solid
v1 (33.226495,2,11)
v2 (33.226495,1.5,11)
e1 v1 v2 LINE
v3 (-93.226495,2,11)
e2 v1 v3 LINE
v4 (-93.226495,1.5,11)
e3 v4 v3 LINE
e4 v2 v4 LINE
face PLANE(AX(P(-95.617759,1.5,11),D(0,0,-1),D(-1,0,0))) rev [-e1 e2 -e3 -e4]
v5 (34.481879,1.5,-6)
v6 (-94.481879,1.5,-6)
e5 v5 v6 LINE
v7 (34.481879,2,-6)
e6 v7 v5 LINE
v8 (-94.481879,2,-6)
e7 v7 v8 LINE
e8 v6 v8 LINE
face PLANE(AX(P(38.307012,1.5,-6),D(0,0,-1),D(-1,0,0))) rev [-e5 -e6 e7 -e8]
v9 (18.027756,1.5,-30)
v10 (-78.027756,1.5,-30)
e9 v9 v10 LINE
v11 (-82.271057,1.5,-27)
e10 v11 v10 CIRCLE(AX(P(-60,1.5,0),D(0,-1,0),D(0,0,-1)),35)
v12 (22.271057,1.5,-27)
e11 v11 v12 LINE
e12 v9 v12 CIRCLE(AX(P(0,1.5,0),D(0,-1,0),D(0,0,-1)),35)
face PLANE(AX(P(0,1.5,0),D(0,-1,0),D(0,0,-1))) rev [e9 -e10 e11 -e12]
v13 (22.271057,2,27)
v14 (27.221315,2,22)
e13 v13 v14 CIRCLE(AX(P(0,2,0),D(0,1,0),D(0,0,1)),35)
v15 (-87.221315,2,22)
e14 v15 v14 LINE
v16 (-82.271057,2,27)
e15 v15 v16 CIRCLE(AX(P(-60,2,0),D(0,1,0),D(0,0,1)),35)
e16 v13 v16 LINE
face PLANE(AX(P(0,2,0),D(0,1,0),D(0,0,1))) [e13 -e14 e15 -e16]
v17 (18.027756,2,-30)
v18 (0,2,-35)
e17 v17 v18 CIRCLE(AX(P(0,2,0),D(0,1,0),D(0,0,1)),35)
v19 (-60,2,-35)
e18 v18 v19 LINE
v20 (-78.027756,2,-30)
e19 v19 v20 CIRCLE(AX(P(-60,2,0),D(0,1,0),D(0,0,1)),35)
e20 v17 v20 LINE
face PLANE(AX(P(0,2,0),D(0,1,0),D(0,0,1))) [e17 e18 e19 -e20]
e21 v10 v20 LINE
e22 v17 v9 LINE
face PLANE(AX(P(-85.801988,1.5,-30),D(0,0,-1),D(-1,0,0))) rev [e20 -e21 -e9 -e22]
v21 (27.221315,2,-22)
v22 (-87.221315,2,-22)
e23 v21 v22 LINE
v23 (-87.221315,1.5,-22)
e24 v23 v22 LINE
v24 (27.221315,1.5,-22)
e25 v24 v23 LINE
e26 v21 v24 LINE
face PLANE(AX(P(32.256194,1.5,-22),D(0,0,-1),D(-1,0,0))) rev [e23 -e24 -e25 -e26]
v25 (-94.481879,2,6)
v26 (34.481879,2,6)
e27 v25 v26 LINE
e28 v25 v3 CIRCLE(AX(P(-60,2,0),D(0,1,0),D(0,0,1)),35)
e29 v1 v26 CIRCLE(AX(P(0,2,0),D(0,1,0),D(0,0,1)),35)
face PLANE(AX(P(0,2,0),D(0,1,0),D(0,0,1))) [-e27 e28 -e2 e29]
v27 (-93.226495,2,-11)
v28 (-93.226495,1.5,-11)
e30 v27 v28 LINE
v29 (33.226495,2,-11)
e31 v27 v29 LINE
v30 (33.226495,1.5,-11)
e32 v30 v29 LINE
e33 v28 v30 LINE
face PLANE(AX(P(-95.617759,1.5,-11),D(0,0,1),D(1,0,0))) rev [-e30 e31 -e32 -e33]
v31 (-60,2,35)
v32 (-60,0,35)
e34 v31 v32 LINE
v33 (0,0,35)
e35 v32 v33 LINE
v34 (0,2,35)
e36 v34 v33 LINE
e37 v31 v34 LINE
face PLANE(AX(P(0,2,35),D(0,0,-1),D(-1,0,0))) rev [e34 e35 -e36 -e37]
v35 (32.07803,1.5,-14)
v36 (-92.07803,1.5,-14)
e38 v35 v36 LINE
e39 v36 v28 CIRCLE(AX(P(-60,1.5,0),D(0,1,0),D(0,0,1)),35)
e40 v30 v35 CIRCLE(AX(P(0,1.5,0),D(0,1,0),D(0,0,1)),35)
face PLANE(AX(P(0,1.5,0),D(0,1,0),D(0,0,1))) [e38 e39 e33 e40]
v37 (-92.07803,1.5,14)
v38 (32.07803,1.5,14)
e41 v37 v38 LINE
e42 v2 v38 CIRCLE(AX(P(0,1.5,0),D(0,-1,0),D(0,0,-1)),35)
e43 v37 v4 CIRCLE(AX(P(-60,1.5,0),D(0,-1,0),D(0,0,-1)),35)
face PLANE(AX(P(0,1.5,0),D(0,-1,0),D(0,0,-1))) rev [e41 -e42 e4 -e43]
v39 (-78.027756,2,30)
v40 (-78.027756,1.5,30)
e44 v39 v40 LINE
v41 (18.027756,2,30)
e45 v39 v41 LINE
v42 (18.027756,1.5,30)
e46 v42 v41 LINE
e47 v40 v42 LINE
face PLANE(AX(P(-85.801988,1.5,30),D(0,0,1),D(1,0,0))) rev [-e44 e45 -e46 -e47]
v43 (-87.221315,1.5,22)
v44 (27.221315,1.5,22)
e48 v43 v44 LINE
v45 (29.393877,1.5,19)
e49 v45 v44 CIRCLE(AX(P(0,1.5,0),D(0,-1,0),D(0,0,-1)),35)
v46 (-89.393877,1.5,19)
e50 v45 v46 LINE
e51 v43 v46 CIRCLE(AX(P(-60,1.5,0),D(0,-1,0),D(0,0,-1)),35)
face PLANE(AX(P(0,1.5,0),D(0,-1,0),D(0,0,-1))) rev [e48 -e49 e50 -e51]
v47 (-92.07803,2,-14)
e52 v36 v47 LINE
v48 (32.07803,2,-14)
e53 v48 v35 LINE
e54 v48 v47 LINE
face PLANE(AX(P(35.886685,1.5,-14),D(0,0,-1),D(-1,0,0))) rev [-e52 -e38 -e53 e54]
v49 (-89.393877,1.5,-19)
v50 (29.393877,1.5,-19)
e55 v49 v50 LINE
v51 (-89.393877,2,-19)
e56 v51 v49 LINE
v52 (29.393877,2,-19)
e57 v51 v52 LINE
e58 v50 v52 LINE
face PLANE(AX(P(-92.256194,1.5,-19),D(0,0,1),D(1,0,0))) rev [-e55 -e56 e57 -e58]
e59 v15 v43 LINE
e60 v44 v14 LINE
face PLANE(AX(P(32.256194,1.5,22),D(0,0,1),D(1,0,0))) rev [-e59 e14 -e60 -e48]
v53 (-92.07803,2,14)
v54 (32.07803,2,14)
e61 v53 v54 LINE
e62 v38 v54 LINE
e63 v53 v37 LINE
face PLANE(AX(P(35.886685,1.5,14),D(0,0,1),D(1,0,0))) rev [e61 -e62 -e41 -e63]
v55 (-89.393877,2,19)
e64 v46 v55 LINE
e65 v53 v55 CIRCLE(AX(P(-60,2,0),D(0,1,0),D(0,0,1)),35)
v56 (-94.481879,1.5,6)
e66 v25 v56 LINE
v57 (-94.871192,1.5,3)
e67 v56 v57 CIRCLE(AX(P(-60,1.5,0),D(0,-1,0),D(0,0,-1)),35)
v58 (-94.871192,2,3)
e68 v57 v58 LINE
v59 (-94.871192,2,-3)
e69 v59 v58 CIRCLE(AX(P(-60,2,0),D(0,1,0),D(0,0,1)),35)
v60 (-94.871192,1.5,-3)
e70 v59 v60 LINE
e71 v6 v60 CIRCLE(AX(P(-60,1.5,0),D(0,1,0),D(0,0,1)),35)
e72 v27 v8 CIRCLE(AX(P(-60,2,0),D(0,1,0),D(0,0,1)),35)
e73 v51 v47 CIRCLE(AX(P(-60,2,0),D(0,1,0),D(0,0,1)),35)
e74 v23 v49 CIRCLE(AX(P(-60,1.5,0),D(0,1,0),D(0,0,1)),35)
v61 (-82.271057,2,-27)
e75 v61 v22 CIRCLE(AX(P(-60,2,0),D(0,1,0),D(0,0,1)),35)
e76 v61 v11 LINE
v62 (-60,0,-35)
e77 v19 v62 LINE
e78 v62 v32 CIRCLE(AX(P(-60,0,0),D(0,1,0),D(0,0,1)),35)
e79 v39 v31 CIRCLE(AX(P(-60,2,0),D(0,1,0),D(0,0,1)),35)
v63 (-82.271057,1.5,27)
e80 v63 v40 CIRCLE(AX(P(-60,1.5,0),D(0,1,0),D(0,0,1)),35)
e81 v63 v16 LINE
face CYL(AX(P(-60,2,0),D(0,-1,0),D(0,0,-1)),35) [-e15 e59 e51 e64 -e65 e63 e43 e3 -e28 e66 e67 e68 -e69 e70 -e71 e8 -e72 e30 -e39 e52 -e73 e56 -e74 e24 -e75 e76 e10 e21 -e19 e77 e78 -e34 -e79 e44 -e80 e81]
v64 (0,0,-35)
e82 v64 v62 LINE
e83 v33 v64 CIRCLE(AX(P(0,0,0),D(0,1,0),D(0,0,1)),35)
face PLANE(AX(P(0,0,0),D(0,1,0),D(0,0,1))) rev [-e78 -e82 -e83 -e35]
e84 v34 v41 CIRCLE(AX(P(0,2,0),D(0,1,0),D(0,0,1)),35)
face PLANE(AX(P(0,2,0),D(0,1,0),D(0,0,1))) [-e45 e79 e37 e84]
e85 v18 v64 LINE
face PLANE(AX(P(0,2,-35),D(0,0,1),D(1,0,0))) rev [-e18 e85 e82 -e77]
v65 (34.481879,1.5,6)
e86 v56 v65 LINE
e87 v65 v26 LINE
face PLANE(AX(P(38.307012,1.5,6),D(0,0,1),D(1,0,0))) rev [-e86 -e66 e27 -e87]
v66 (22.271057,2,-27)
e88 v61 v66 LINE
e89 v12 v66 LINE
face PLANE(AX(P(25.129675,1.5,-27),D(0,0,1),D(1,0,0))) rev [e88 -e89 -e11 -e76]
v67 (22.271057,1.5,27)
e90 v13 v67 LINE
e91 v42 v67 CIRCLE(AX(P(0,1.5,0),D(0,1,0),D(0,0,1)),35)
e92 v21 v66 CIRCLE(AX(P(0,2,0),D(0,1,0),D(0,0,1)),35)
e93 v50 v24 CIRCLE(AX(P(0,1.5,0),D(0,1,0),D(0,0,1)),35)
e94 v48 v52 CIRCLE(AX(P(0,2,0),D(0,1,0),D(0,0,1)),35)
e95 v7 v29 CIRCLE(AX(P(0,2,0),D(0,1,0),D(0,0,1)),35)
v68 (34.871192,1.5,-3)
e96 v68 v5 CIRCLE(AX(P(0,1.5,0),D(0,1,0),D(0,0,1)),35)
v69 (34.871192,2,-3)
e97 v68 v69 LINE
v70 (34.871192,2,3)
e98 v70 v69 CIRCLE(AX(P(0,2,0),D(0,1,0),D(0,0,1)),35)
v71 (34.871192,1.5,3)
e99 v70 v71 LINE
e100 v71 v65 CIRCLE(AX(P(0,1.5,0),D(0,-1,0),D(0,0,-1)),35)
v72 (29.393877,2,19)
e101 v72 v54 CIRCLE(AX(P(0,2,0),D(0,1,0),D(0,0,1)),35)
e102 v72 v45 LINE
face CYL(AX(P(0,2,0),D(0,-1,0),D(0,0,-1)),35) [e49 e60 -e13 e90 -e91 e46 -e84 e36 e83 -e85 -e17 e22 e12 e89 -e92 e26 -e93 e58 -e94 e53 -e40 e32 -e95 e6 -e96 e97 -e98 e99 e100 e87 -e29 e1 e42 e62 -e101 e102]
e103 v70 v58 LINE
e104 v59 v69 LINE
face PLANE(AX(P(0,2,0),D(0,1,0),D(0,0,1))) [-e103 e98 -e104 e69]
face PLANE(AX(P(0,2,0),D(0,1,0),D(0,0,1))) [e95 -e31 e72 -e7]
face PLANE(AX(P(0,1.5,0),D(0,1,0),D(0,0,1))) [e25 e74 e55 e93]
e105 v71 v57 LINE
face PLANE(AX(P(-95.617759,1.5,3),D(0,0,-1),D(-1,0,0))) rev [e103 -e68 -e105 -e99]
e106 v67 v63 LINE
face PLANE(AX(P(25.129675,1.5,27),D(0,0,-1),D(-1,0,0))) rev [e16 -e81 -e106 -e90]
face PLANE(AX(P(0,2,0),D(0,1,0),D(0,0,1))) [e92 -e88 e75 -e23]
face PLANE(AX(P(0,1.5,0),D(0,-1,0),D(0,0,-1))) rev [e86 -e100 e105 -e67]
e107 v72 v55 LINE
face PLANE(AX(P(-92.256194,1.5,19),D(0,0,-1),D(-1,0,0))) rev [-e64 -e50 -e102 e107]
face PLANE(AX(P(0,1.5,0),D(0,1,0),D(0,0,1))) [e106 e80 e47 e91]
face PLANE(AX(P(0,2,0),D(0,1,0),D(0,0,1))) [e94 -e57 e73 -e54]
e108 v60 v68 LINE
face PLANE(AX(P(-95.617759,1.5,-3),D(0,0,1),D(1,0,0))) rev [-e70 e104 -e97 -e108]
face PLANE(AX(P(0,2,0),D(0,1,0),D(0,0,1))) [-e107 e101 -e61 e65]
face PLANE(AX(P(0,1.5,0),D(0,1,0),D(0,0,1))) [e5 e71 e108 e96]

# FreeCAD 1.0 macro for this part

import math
import FreeCAD as App
import Part
import Sketcher
from FreeCAD import Vector
Q = App.Units.Quantity

doc = App.newDocument("Part")
body = doc.addObject("PartDesign::Body", "Body")

sketch1 = doc.addObject("Sketcher::SketchObject", "Sketch")
body.addObject(sketch1)
sketch1.AttachmentSupport = (doc.XZ_Plane, [""])
sketch1.MapMode = "FlatFace"
sketch1.addGeometry(Part.LineSegment(Vector(0, -35, 0), Vector(-60, -35, 0)), False)
sketch1.addGeometry(Part.ArcOfCircle(Part.Circle(Vector(-60, 0, 0), Vector(0, 0, 1), 35), math.radians(90), math.radians(270)), False)
sketch1.addGeometry(Part.LineSegment(Vector(-60, 35, 0), Vector(0, 35, 0)), False)
sketch1.addGeometry(Part.ArcOfCircle(Part.Circle(Vector(0, 0, 0), Vector(0, 0, 1), 35), math.radians(-90), math.radians(90)), False)
sketch1.addConstraint(Sketcher.Constraint("Tangent", 0, 2, 1, 2))
sketch1.addConstraint(Sketcher.Constraint("Tangent", 1, 1, 2, 1))
sketch1.addConstraint(Sketcher.Constraint("Tangent", 2, 2, 3, 2))
sketch1.addConstraint(Sketcher.Constraint("Tangent", 3, 1, 0, 1))
sketch1.addConstraint(Sketcher.Constraint("Horizontal", 0))
sketch1.addConstraint(Sketcher.Constraint("Horizontal", 2))
sketch1.addConstraint(Sketcher.Constraint("Coincident", 3, 3, -1, 1))
sketch1.addConstraint(Sketcher.Constraint("Radius", 1, Q("35 mm")))
sketch1.addConstraint(Sketcher.Constraint("DistanceX", 0, 2, 0, 1, Q("60 mm")))
pad1 = doc.addObject("PartDesign::Pad", "Pad")
body.addObject(pad1)
pad1.Profile = sketch1
pad1.Length = 2
pad1.Reversed = True

sketch2 = doc.addObject("Sketcher::SketchObject", "Sketch001")
body.addObject(sketch2)
sketch2.AttachmentSupport = (doc.XZ_Plane, [""])
sketch2.MapMode = "FlatFace"
sketch2.AttachmentOffset = App.Placement(Vector(0, 0, -2), App.Rotation())
sketch2.addGeometry(Part.LineSegment(Vector(-85.8, -30, 0), Vector(-85.8, -27, 0)), False)
sketch2.addGeometry(Part.LineSegment(Vector(-85.8, -27, 0), Vector(25.1, -27, 0)), False)
sketch2.addGeometry(Part.LineSegment(Vector(25.1, -27, 0), Vector(25.1, -30, 0)), False)
sketch2.addGeometry(Part.LineSegment(Vector(25.1, -30, 0), Vector(-85.8, -30, 0)), False)
sketch2.addGeometry(Part.LineSegment(Vector(-92.3, -22, 0), Vector(-92.3, -19, 0)), False)
sketch2.addGeometry(Part.LineSegment(Vector(-92.3, -19, 0), Vector(32.3, -19, 0)), False)
sketch2.addGeometry(Part.LineSegment(Vector(32.3, -19, 0), Vector(32.3, -22, 0)), False)
sketch2.addGeometry(Part.LineSegment(Vector(32.3, -22, 0), Vector(-92.3, -22, 0)), False)
sketch2.addGeometry(Part.LineSegment(Vector(-95.6, -14, 0), Vector(-95.6, -11, 0)), False)
sketch2.addGeometry(Part.LineSegment(Vector(-95.6, -11, 0), Vector(35.9, -11, 0)), False)
sketch2.addGeometry(Part.LineSegment(Vector(35.9, -11, 0), Vector(35.9, -14, 0)), False)
sketch2.addGeometry(Part.LineSegment(Vector(35.9, -14, 0), Vector(-95.6, -14, 0)), False)
sketch2.addGeometry(Part.LineSegment(Vector(-95.6, -6, 0), Vector(-95.6, -3, 0)), False)
sketch2.addGeometry(Part.LineSegment(Vector(-95.6, -3, 0), Vector(38.3, -3, 0)), False)
sketch2.addGeometry(Part.LineSegment(Vector(38.3, -3, 0), Vector(38.3, -6, 0)), False)
sketch2.addGeometry(Part.LineSegment(Vector(38.3, -6, 0), Vector(-95.6, -6, 0)), False)
sketch2.addGeometry(Part.LineSegment(Vector(-95.6, 3, 0), Vector(-95.6, 6, 0)), False)
sketch2.addGeometry(Part.LineSegment(Vector(-95.6, 6, 0), Vector(38.3, 6, 0)), False)
sketch2.addGeometry(Part.LineSegment(Vector(38.3, 6, 0), Vector(38.3, 3, 0)), False)
sketch2.addGeometry(Part.LineSegment(Vector(38.3, 3, 0), Vector(-95.6, 3, 0)), False)
sketch2.addGeometry(Part.LineSegment(Vector(-95.6, 11, 0), Vector(-95.6, 14, 0)), False)
sketch2.addGeometry(Part.LineSegment(Vector(-95.6, 14, 0), Vector(35.9, 14, 0)), False)
sketch2.addGeometry(Part.LineSegment(Vector(35.9, 14, 0), Vector(35.9, 11, 0)), False)
sketch2.addGeometry(Part.LineSegment(Vector(35.9, 11, 0), Vector(-95.6, 11, 0)), False)
sketch2.addGeometry(Part.LineSegment(Vector(-92.3, 19, 0), Vector(-92.3, 22, 0)), False)
sketch2.addGeometry(Part.LineSegment(Vector(-92.3, 22, 0), Vector(32.3, 22, 0)), False)
sketch2.addGeometry(Part.LineSegment(Vector(32.3, 22, 0), Vector(32.3, 19, 0)), False)
sketch2.addGeometry(Part.LineSegment(Vector(32.3, 19, 0), Vector(-92.3, 19, 0)), False)
sketch2.addGeometry(Part.LineSegment(Vector(-85.8, 27, 0), Vector(-85.8, 30, 0)), False)
sketch2.addGeometry(Part.LineSegment(Vector(-85.8, 30, 0), Vector(25.1, 30, 0)), False)
sketch2.addGeometry(Part.LineSegment(Vector(25.1, 30, 0), Vector(25.1, 27, 0)), False)
sketch2.addGeometry(Part.LineSegment(Vector(25.1, 27, 0), Vector(-85.8, 27, 0)), False)
sketch2.addConstraint(Sketcher.Constraint("Coincident", 0, 2, 1, 1))
sketch2.addConstraint(Sketcher.Constraint("Coincident", 1, 2, 2, 1))
sketch2.addConstraint(Sketcher.Constraint("Coincident", 2, 2, 3, 1))
sketch2.addConstraint(Sketcher.Constraint("Coincident", 3, 2, 0, 1))
sketch2.addConstraint(Sketcher.Constraint("Coincident", 4, 2, 5, 1))
sketch2.addConstraint(Sketcher.Constraint("Coincident", 5, 2, 6, 1))
sketch2.addConstraint(Sketcher.Constraint("Coincident", 6, 2, 7, 1))
sketch2.addConstraint(Sketcher.Constraint("Coincident", 7, 2, 4, 1))
sketch2.addConstraint(Sketcher.Constraint("Coincident", 8, 2, 9, 1))
sketch2.addConstraint(Sketcher.Constraint("Coincident", 9, 2, 10, 1))
sketch2.addConstraint(Sketcher.Constraint("Coincident", 10, 2, 11, 1))
sketch2.addConstraint(Sketcher.Constraint("Coincident", 11, 2, 8, 1))
sketch2.addConstraint(Sketcher.Constraint("Coincident", 12, 2, 13, 1))
sketch2.addConstraint(Sketcher.Constraint("Coincident", 13, 2, 14, 1))
sketch2.addConstraint(Sketcher.Constraint("Coincident", 14, 2, 15, 1))
sketch2.addConstraint(Sketcher.Constraint("Coincident", 15, 2, 12, 1))
sketch2.addConstraint(Sketcher.Constraint("Coincident", 16, 2, 17, 1))
sketch2.addConstraint(Sketcher.Constraint("Coincident", 17, 2, 18, 1))
sketch2.addConstraint(Sketcher.Constraint("Coincident", 18, 2, 19, 1))
sketch2.addConstraint(Sketcher.Constraint("Coincident", 19, 2, 16, 1))
sketch2.addConstraint(Sketcher.Constraint("Coincident", 20, 2, 21, 1))
sketch2.addConstraint(Sketcher.Constraint("Coincident", 21, 2, 22, 1))
sketch2.addConstraint(Sketcher.Constraint("Coincident", 22, 2, 23, 1))
sketch2.addConstraint(Sketcher.Constraint("Coincident", 23, 2, 20, 1))
sketch2.addConstraint(Sketcher.Constraint("Coincident", 24, 2, 25, 1))
sketch2.addConstraint(Sketcher.Constraint("Coincident", 25, 2, 26, 1))
sketch2.addConstraint(Sketcher.Constraint("Coincident", 26, 2, 27, 1))
sketch2.addConstraint(Sketcher.Constraint("Coincident", 27, 2, 24, 1))
sketch2.addConstraint(Sketcher.Constraint("Coincident", 28, 2, 29, 1))
sketch2.addConstraint(Sketcher.Constraint("Coincident", 29, 2, 30, 1))
sketch2.addConstraint(Sketcher.Constraint("Coincident", 30, 2, 31, 1))
sketch2.addConstraint(Sketcher.Constraint("Coincident", 31, 2, 28, 1))
sketch2.addConstraint(Sketcher.Constraint("Vertical", 0))
sketch2.addConstraint(Sketcher.Constraint("Horizontal", 1))
sketch2.addConstraint(Sketcher.Constraint("Vertical", 2))
sketch2.addConstraint(Sketcher.Constraint("Horizontal", 3))
sketch2.addConstraint(Sketcher.Constraint("Vertical", 4))
sketch2.addConstraint(Sketcher.Constraint("Horizontal", 5))
sketch2.addConstraint(Sketcher.Constraint("Vertical", 6))
sketch2.addConstraint(Sketcher.Constraint("Horizontal", 7))
sketch2.addConstraint(Sketcher.Constraint("Vertical", 8))
sketch2.addConstraint(Sketcher.Constraint("Horizontal", 9))
sketch2.addConstraint(Sketcher.Constraint("Vertical", 10))
sketch2.addConstraint(Sketcher.Constraint("Horizontal", 11))
sketch2.addConstraint(Sketcher.Constraint("Vertical", 12))
sketch2.addConstraint(Sketcher.Constraint("Horizontal", 13))
sketch2.addConstraint(Sketcher.Constraint("Vertical", 14))
sketch2.addConstraint(Sketcher.Constraint("Horizontal", 15))
sketch2.addConstraint(Sketcher.Constraint("Vertical", 16))
sketch2.addConstraint(Sketcher.Constraint("Horizontal", 17))
sketch2.addConstraint(Sketcher.Constraint("Vertical", 18))
sketch2.addConstraint(Sketcher.Constraint("Horizontal", 19))
sketch2.addConstraint(Sketcher.Constraint("Vertical", 20))
sketch2.addConstraint(Sketcher.Constraint("Horizontal", 21))
sketch2.addConstraint(Sketcher.Constraint("Vertical", 22))
sketch2.addConstraint(Sketcher.Constraint("Horizontal", 23))
sketch2.addConstraint(Sketcher.Constraint("Vertical", 24))
sketch2.addConstraint(Sketcher.Constraint("Horizontal", 25))
sketch2.addConstraint(Sketcher.Constraint("Vertical", 26))
sketch2.addConstraint(Sketcher.Constraint("Horizontal", 27))
sketch2.addConstraint(Sketcher.Constraint("Vertical", 28))
sketch2.addConstraint(Sketcher.Constraint("Horizontal", 29))
sketch2.addConstraint(Sketcher.Constraint("Vertical", 30))
sketch2.addConstraint(Sketcher.Constraint("Horizontal", 31))
sketch2.addConstraint(Sketcher.Constraint("Symmetric", 15, 2, 16, 2, -1))
sketch2.addConstraint(Sketcher.Constraint("Symmetric", 13, 2, 18, 2, -1))
sketch2.addConstraint(Sketcher.Constraint("Symmetric", 11, 2, 20, 2, -1))
sketch2.addConstraint(Sketcher.Constraint("Symmetric", 9, 2, 22, 2, -1))
sketch2.addConstraint(Sketcher.Constraint("Symmetric", 7, 2, 24, 2, -1))
sketch2.addConstraint(Sketcher.Constraint("Symmetric", 5, 2, 26, 2, -1))
sketch2.addConstraint(Sketcher.Constraint("Symmetric", 3, 2, 28, 2, -1))
sketch2.addConstraint(Sketcher.Constraint("Symmetric", 1, 2, 30, 2, -1))
sketch2.addConstraint(Sketcher.Constraint("Vertical", 11, 2, 12, 2))
sketch2.addConstraint(Sketcher.Constraint("Equal", 2, 4))
sketch2.addConstraint(Sketcher.Constraint("Equal", 6, 8))
sketch2.addConstraint(Sketcher.Constraint("Equal", 10, 12))
sketch2.addConstraint(Sketcher.Constraint("DistanceY", 0, 1, 0, 2, Q("3 mm")))
sketch2.addConstraint(Sketcher.Constraint("DistanceY", 0, 2, -1, 1, Q("27 mm")))
sketch2.addConstraint(Sketcher.Constraint("DistanceY", 4, 2, -1, 1, Q("19 mm")))
sketch2.addConstraint(Sketcher.Constraint("DistanceY", 8, 2, -1, 1, Q("11 mm")))
sketch2.addConstraint(Sketcher.Constraint("DistanceY", 12, 2, -1, 1, Q("3 mm")))
sketch2.addConstraint(Sketcher.Constraint("DistanceX", 13, 1, 13, 2, Q("133.924771 mm")))
sketch2.addConstraint(Sketcher.Constraint("DistanceX", 1, 1, 1, 2, Q("110.931663 mm")))
sketch2.addConstraint(Sketcher.Constraint("DistanceX", 5, 1, 5, 2, Q("124.512388 mm")))
sketch2.addConstraint(Sketcher.Constraint("DistanceX", 9, 1, 9, 2, Q("131.504444 mm")))
sketch2.addConstraint(Sketcher.Constraint("DistanceX", 8, 2, -1, 1, Q("95.617759 mm")))
sketch2.addConstraint(Sketcher.Constraint("DistanceX", 4, 2, 1, 2, Q("117.385869 mm")))
sketch2.addConstraint(Sketcher.Constraint("DistanceX", 8, 2, 0, 2, Q("9.815771 mm")))
pocket1 = doc.addObject("PartDesign::Pocket", "Pocket")
body.addObject(pocket1)
pocket1.Profile = sketch2
pocket1.Length = 0.5
pocket1.Reversed = True

doc.recompute()
